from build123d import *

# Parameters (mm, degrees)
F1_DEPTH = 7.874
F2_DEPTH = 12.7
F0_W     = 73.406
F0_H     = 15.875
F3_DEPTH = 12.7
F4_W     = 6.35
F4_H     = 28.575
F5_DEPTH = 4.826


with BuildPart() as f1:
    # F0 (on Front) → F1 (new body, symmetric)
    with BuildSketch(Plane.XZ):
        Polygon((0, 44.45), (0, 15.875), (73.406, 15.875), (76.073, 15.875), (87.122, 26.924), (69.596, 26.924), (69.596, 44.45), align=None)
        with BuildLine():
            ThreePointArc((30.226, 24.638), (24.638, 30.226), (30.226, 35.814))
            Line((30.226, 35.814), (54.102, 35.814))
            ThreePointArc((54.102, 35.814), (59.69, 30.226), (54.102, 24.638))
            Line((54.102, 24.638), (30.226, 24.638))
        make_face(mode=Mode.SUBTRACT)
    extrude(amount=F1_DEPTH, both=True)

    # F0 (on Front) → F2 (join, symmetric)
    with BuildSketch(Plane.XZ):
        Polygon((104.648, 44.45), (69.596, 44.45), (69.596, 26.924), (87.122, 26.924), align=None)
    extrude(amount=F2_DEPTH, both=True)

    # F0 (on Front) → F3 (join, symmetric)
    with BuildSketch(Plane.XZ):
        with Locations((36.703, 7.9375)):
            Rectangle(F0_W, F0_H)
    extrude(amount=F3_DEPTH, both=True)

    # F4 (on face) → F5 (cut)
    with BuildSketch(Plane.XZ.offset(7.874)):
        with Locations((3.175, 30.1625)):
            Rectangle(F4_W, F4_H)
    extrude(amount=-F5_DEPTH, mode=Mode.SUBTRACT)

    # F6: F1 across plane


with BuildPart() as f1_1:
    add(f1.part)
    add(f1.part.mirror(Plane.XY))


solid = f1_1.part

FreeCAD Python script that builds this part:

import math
import FreeCAD as App
import Part
import Sketcher

V = App.Vector
Q = App.Units.Quantity


def add_polygon(sketch, points):
    """Adds a closed chain of lines whose ends are joined by coincident constraints."""
    first, n = sketch.GeometryCount, len(points)
    for a, b in zip(points, points[1:] + points[:1]):
        sketch.addGeometry(Part.LineSegment(App.Vector(*a, 0), App.Vector(*b, 0)), False)
    for i in range(n):
        sketch.addConstraint(Sketcher.Constraint("Coincident", first + i, 2, first + (i + 1) % n, 1))

doc = App.newDocument("Part")
body = doc.addObject("PartDesign::Body", "Body")

# Sketch on XZ plane
sketch1 = doc.addObject("Sketcher::SketchObject", "Sketch")
body.addObject(sketch1)
sketch1.AttachmentSupport = (doc.XZ_Plane, [""])
sketch1.MapMode = "FlatFace"
add_polygon(sketch1, [(0, 44.45), (0, 15.875), (76.073, 15.875), (87.122, 26.924), (69.596, 26.924), (69.596, 44.45)])  # lines 0-5
sketch1.addGeometry(Part.LineSegment(V(54.102, 24.638, 0), V(30.226, 24.638, 0)), False)  # 6
sketch1.addGeometry(Part.ArcOfCircle(Part.Circle(V(30.226, 30.226, 0), V(0, 0, 1), 5.588), math.radians(90), math.radians(270)), False)  # 7
sketch1.addGeometry(Part.LineSegment(V(30.226, 35.814, 0), V(54.102, 35.814, 0)), False)  # 8
sketch1.addGeometry(Part.ArcOfCircle(Part.Circle(V(54.102, 30.226, 0), V(0, 0, 1), 5.588), math.radians(-90), math.radians(90)), False)  # 9
sketch1.addConstraint(Sketcher.Constraint("Tangent", 6, 2, 7, 2))
sketch1.addConstraint(Sketcher.Constraint("Tangent", 7, 1, 8, 1))
sketch1.addConstraint(Sketcher.Constraint("Tangent", 8, 2, 9, 2))
sketch1.addConstraint(Sketcher.Constraint("Tangent", 9, 1, 6, 1))
sketch1.addConstraint(Sketcher.Constraint("Vertical", 0))
sketch1.addConstraint(Sketcher.Constraint("Horizontal", 1))
sketch1.addConstraint(Sketcher.Constraint("Horizontal", 3))
sketch1.addConstraint(Sketcher.Constraint("Vertical", 4))
sketch1.addConstraint(Sketcher.Constraint("Horizontal", 5))
sketch1.addConstraint(Sketcher.Constraint("Horizontal", 6))
sketch1.addConstraint(Sketcher.Constraint("Horizontal", 8))
sketch1.addConstraint(Sketcher.Constraint("PointOnObject", 0, 2, -2))
sketch1.addConstraint(Sketcher.Constraint("Equal", 3, 4))
sketch1.addConstraint(Sketcher.Constraint("Radius", 7, Q("0.22 in")))
sketch1.addConstraint(Sketcher.Constraint("Angle", 2, Q("45 deg")))
sketch1.addConstraint(Sketcher.Constraint("DistanceX", 3, 2, 3, 1, Q("0.69 in")))
sketch1.addConstraint(Sketcher.Constraint("DistanceX", 5, 2, 5, 1, Q("2.74 in")))
sketch1.addConstraint(Sketcher.Constraint("DistanceX", 6, 2, 6, 1, Q("0.94 in")))
sketch1.addConstraint(Sketcher.Constraint("DistanceX", 9, 3, 2, 2, Q("1.3 in")))
sketch1.addConstraint(Sketcher.Constraint("DistanceX", 1, 1, 1, 2, Q("2.995 in")))
sketch1.addConstraint(Sketcher.Constraint("DistanceY", -1, 1, 7, 3, Q("1.19 in")))
sketch1.addConstraint(Sketcher.Constraint("DistanceY", -1, 1, 2, 2, Q("1.06 in")))
pad1 = doc.addObject("PartDesign::Pad", "Pad")
body.addObject(pad1)
pad1.Profile = sketch1
pad1.Length = Q("0.62 in")
pad1.Midplane = True

# Sketch on XZ plane
sketch2 = doc.addObject("Sketcher::SketchObject", "Sketch001")
body.addObject(sketch2)
sketch2.AttachmentSupport = (doc.XZ_Plane, [""])
sketch2.MapMode = "FlatFace"
add_polygon(sketch2, [(104.648, 44.45), (69.596, 44.45), (69.596, 26.924), (87.122, 26.924)])  # lines 0-3
sketch2.addConstraint(Sketcher.Constraint("Horizontal", 0))
sketch2.addConstraint(Sketcher.Constraint("Vertical", 1))
sketch2.addConstraint(Sketcher.Constraint("Horizontal", 2))
sketch2.addConstraint(Sketcher.Constraint("Equal", 2, 1))
sketch2.addConstraint(Sketcher.Constraint("Angle", 3, Q("45 deg")))
sketch2.addConstraint(Sketcher.Constraint("DistanceX", 0, 2, 0, 1, Q("1.38 in")))
sketch2.addConstraint(Sketcher.Constraint("DistanceX", -1, 1, 0, 2, Q("2.74 in")))
sketch2.addConstraint(Sketcher.Constraint("DistanceY", -1, 1, 0, 2, Q("1.75 in")))
pad2 = doc.addObject("PartDesign::Pad", "Pad001")
body.addObject(pad2)
pad2.Profile = sketch2
pad2.Length = Q("1 in")
pad2.Midplane = True

# Sketch on XZ plane
sketch3 = doc.addObject("Sketcher::SketchObject", "Sketch002")
body.addObject(sketch3)
sketch3.AttachmentSupport = (doc.XZ_Plane, [""])
sketch3.MapMode = "FlatFace"
add_polygon(sketch3, [(0, 15.875), (0, 0), (73.406, 0), (73.406, 15.875)])  # lines 0-3
sketch3.addConstraint(Sketcher.Constraint("Vertical", 0))
sketch3.addConstraint(Sketcher.Constraint("Horizontal", 1))
sketch3.addConstraint(Sketcher.Constraint("Vertical", 2))
sketch3.addConstraint(Sketcher.Constraint("Horizontal", 3))
sketch3.addConstraint(Sketcher.Constraint("Coincident", 0, 2, -1, 1))
sketch3.addConstraint(Sketcher.Constraint("DistanceX", 1, 1, 1, 2, Q("2.89 in")))
sketch3.addConstraint(Sketcher.Constraint("DistanceY", 0, 2, 0, 1, Q("0.625 in")))
pad3 = doc.addObject("PartDesign::Pad", "Pad002")
body.addObject(pad3)
pad3.Profile = sketch3
pad3.Length = Q("1 in")
pad3.Midplane = True

# Sketch on XZ plane
sketch4 = doc.addObject("Sketcher::SketchObject", "Sketch003")
body.addObject(sketch4)
sketch4.AttachmentSupport = (doc.XZ_Plane, [""])
sketch4.MapMode = "FlatFace"
sketch4.AttachmentOffset = App.Placement(V(0, 0, 0.31 * 25.4), App.Rotation())
add_polygon(sketch4, [(0, 44.45), (0, 15.875), (6.35, 15.875), (6.35, 44.45)])  # lines 0-3
sketch4.addConstraint(Sketcher.Constraint("Vertical", 0))
sketch4.addConstraint(Sketcher.Constraint("Horizontal", 1))
sketch4.addConstraint(Sketcher.Constraint("Vertical", 2))
sketch4.addConstraint(Sketcher.Constraint("Horizontal", 3))
sketch4.addConstraint(Sketcher.Constraint("PointOnObject", 0, 2, -2))
sketch4.addConstraint(Sketcher.Constraint("DistanceX", 1, 1, 1, 2, Q("0.25 in")))
sketch4.addConstraint(Sketcher.Constraint("DistanceY", 0, 2, 0, 1, Q("1.125 in")))
sketch4.addConstraint(Sketcher.Constraint("DistanceY", -1, 1, 2, 2, Q("1.75 in")))
pocket1 = doc.addObject("PartDesign::Pocket", "Pocket")
body.addObject(pocket1)
pocket1.Profile = sketch4
pocket1.Length = Q("0.19 in")
body2 = doc.addObject("PartDesign::Body", "Body001")
doc.recompute()

body2.BaseFeature = body
doc.recompute()

mirroring = doc.addObject("Part::Mirroring", "Mirroring")
mirroring.Source = body
mirroring.Base = V(0, 0, 0)
mirroring.Normal = V(0, 0, 1)
body3 = doc.addObject("PartDesign::Body", "Body002")
body3.BaseFeature = mirroring
boolean = doc.addObject("PartDesign::Boolean", "Boolean")
body2.addObject(boolean)
boolean.Type = "Fuse"
boolean.addObjects([body3])
doc.recompute()
mirroring.Visibility = False

doc.recompute()
